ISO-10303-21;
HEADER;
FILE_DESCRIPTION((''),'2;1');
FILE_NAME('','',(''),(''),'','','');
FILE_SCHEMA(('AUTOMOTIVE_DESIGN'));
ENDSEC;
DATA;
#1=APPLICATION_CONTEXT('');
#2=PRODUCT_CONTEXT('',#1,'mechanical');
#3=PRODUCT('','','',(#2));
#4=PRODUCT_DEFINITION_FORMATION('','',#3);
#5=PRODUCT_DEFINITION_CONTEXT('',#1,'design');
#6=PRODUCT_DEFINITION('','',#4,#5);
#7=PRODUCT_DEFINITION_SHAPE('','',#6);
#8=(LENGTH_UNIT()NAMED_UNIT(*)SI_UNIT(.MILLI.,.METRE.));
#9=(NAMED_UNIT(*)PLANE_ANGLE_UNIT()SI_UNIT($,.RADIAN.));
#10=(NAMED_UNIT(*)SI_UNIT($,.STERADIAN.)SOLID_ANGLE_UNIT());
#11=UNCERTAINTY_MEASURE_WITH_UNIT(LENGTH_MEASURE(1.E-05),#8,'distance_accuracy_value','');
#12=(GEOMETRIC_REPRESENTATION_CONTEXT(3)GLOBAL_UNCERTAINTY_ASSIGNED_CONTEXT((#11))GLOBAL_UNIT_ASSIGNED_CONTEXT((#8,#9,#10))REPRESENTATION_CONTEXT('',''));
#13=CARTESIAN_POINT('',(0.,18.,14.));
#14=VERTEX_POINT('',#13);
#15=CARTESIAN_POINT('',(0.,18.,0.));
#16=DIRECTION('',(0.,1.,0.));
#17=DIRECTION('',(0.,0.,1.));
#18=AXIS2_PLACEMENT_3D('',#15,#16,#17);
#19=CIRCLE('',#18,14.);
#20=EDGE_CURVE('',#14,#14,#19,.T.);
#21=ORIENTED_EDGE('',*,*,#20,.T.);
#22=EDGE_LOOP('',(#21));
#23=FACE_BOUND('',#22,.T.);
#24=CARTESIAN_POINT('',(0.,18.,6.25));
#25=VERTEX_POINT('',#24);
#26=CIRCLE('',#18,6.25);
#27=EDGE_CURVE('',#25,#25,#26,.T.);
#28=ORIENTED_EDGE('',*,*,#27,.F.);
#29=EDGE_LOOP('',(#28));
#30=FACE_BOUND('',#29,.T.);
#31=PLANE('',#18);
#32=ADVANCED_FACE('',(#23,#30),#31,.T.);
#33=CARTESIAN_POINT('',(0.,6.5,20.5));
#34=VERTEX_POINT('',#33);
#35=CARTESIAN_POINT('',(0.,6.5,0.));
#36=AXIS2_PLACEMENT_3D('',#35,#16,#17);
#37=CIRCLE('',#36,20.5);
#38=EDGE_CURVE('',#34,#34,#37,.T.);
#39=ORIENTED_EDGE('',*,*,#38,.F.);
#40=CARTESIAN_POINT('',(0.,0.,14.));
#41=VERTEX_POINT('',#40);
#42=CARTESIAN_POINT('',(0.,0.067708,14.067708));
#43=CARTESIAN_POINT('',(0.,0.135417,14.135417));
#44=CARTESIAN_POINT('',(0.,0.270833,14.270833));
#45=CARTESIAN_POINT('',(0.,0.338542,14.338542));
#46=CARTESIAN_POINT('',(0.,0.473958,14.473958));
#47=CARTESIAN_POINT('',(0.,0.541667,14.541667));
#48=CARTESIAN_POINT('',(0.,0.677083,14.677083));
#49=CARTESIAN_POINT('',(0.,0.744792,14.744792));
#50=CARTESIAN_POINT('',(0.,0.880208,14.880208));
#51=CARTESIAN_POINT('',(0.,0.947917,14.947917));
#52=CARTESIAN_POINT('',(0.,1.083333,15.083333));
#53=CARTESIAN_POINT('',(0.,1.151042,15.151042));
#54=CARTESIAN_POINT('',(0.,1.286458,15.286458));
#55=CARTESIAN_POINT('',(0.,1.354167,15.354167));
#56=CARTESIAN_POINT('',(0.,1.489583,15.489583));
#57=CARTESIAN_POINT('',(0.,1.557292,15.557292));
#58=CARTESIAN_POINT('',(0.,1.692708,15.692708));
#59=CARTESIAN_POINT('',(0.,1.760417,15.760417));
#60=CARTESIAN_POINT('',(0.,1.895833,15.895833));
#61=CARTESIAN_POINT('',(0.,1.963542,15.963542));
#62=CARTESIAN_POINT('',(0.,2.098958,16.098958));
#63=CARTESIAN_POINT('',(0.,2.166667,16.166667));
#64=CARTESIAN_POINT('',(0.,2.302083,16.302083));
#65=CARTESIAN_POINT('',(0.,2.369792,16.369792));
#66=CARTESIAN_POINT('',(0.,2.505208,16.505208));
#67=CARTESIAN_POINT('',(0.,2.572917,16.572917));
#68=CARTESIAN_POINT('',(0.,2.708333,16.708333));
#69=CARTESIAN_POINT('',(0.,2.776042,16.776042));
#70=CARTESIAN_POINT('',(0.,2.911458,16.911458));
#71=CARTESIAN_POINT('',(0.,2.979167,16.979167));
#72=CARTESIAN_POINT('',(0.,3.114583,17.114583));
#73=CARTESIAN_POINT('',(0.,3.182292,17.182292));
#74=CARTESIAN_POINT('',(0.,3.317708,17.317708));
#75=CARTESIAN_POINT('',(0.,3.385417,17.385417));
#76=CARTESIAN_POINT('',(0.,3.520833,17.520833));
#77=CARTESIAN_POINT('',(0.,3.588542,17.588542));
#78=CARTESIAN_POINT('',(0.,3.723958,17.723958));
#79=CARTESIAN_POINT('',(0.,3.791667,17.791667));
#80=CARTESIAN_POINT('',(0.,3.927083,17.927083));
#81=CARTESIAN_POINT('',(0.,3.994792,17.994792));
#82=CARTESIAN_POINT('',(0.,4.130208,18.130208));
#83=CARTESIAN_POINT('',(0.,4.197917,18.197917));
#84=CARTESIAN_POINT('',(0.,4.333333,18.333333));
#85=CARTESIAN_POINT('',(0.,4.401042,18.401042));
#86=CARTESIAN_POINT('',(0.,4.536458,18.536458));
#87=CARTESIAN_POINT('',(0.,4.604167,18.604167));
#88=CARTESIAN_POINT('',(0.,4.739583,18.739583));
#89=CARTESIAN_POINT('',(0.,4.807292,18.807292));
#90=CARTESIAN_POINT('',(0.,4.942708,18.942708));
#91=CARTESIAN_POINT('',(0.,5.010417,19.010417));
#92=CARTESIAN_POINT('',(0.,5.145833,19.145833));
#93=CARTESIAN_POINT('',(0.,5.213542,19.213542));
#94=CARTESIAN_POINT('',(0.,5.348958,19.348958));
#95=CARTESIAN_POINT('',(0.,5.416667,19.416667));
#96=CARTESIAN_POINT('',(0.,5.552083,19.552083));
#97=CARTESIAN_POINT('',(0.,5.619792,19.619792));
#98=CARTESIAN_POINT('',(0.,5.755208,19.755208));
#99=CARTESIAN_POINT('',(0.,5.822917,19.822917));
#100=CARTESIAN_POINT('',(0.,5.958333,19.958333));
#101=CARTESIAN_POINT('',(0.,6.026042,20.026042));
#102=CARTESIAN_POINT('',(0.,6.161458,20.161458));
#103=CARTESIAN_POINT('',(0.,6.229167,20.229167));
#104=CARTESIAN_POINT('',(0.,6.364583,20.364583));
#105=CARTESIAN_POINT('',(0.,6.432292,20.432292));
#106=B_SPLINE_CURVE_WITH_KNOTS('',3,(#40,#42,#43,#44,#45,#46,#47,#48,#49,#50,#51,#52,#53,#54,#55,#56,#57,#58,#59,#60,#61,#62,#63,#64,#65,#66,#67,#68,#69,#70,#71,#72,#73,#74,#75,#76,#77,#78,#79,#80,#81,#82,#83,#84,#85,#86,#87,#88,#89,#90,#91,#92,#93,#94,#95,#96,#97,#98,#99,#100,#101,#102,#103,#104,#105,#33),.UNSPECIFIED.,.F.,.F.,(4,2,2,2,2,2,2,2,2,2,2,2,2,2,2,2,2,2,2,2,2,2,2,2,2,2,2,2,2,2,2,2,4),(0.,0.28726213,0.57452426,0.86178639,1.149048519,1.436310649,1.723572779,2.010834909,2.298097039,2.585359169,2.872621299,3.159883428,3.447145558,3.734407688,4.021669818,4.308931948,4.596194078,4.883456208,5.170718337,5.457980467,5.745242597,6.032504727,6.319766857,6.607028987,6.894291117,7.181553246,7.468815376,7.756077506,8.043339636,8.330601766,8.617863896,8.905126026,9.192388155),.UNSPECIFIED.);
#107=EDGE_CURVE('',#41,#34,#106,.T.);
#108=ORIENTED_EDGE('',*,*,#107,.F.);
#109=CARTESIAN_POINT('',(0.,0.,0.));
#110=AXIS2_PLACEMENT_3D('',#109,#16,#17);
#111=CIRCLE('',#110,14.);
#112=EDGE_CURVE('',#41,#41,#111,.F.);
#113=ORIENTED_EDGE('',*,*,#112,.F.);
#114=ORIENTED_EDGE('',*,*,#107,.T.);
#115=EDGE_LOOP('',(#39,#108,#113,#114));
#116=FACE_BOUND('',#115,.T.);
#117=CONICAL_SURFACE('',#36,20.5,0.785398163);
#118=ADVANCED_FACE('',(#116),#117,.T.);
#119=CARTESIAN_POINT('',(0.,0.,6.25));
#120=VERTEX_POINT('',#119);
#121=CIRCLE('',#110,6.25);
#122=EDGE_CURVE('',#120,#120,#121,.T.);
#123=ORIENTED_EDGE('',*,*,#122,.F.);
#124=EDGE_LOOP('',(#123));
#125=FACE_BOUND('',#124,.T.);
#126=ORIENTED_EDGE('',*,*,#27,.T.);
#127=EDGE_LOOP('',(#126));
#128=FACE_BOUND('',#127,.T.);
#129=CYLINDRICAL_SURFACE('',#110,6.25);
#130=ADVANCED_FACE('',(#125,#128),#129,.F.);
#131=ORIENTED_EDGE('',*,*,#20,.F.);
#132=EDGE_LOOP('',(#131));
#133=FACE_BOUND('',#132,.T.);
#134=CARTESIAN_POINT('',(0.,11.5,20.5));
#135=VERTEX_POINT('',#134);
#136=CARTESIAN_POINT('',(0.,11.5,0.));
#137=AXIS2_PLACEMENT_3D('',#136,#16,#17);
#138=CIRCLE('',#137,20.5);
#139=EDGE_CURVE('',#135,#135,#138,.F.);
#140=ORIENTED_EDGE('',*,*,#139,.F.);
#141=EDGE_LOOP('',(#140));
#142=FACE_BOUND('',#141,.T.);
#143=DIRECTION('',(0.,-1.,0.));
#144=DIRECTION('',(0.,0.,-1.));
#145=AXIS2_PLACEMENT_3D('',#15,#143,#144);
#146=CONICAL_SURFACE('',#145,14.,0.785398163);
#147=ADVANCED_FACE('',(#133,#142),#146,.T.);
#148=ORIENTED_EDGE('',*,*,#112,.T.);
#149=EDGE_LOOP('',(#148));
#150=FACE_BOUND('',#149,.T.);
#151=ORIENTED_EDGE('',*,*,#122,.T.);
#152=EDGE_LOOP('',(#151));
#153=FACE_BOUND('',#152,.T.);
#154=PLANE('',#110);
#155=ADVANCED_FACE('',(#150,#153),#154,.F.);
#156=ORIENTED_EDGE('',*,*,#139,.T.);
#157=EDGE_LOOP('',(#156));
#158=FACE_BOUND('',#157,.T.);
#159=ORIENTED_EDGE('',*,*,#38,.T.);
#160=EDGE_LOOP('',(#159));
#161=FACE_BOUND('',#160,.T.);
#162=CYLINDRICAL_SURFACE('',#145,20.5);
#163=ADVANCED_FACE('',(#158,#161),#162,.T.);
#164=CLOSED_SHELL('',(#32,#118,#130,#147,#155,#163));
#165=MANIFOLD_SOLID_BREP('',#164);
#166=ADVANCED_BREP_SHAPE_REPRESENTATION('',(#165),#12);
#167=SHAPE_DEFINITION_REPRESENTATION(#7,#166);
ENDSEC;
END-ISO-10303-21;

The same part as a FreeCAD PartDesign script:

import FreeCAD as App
import Part
import Sketcher

V = App.Vector
Q = App.Units.Quantity


def edges_at(feature, points):
    """Names of the edges that pass closest to the given points."""
    edges = feature.Shape.Edges
    near = lambda p: min(range(len(edges)), key=lambda i: edges[i].distToShape(Part.Vertex(*p))[0])
    return sorted({f"Edge{near(p) + 1}" for p in points})

doc = App.newDocument("Part")
params = doc.addObject("Spreadsheet::Sheet", "Params")
for row, (alias, value) in enumerate([
    ("sketch1_diameter", "41 mm"),
    ("pad1_length", "18 mm"),
    ("chamfer_size", "6.5 mm"),
    ("sketch2_diameter", "12.5 mm"),
], start=1):
    params.set(f"A{row}", alias)
    params.set(f"B{row}", "=" + value)
    params.setAlias(f"B{row}", alias)

body = doc.addObject("PartDesign::Body", "Body")

# Sketch on XZ plane
sketch1 = body.newObject("Sketcher::SketchObject", "Sketch")
sketch1.AttachmentSupport = (doc.getObject("XZ_Plane"), [""])
sketch1.MapMode = "FlatFace"
sketch1.addGeometry(Part.Circle(V(0, 0, 0), V(0, 0, 1), 20.5), False)
sketch1.addConstraint(Sketcher.Constraint("Coincident", 0, 3, -1, 1))
sketch1.addConstraint(Sketcher.Constraint("Diameter", 0, Q("41 mm")))
sketch1.setExpression("Constraints[1]", "Params.sketch1_diameter")
pad1 = body.newObject("PartDesign::Pad", "Pad")
pad1.Profile = sketch1
pad1.setExpression("Length", "Params.pad1_length")
pad1.Reversed = True
doc.recompute()

chamfer = body.newObject("PartDesign::Chamfer", "Chamfer")
chamfer.Base = (pad1, edges_at(pad1, [(0, 0, -20.5), (0, 18, -20.5)]))
chamfer.setExpression("Size", "Params.chamfer_size")

# Sketch on XZ plane
sketch2 = body.newObject("Sketcher::SketchObject", "Sketch001")
sketch2.AttachmentSupport = (doc.getObject("XZ_Plane"), [""])
sketch2.MapMode = "FlatFace"
sketch2.AttachmentOffset = App.Placement(V(0, 0, -18), App.Rotation())
sketch2.addGeometry(Part.Circle(V(0, 0, 0), V(0, 0, 1), 6.25), False)
sketch2.addConstraint(Sketcher.Constraint("Coincident", 0, 3, -1, 1))
sketch2.addConstraint(Sketcher.Constraint("Diameter", 0, Q("12.5 mm")))
sketch2.setExpression("Constraints[1]", "Params.sketch2_diameter")
pocket1 = body.newObject("PartDesign::Pocket", "Pocket")
pocket1.Profile = sketch2
pocket1.Type = "ThroughAll"
pocket1.Reversed = True

doc.recompute()
